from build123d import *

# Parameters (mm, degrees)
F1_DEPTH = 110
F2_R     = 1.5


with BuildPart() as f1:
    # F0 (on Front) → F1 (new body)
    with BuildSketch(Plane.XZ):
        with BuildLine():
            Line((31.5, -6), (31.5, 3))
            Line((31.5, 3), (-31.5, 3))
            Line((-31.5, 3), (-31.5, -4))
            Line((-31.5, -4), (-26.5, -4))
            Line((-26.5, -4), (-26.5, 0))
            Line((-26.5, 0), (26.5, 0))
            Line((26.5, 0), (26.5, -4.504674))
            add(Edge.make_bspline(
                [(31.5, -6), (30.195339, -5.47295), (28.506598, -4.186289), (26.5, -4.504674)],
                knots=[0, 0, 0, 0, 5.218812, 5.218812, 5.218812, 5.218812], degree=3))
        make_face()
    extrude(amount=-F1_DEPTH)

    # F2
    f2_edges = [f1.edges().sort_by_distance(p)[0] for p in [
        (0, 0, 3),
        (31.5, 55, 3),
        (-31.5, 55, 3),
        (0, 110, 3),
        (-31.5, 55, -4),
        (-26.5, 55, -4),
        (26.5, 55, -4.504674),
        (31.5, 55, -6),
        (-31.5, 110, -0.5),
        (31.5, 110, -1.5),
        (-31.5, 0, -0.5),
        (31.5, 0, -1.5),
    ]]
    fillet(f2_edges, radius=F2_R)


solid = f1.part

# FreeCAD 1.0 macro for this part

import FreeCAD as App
import Part
import Sketcher
from FreeCAD import Vector


def edges_at(feature, points):
    """Names of the edges that pass closest to the given points."""
    edges = feature.Shape.Edges
    near = lambda p: min(range(len(edges)), key=lambda i: edges[i].distToShape(Part.Vertex(*p))[0])
    return sorted({f"Edge{near(p) + 1}" for p in points})

doc = App.newDocument("Part")
params = doc.addObject("Spreadsheet::Sheet", "Params")
for row, (alias, value) in enumerate([
    ("sketch1_width", "63 mm"),
    ("sketch1_height", "9 mm"),
    ("sketch1_height2", "7 mm"),
    ("pad1_length", "110 mm"),
    ("fillet_radius", "1.5 mm"),
], start=1):
    params.set(f"A{row}", alias)
    params.set(f"B{row}", "=" + value)
    params.setAlias(f"B{row}", alias)

body = doc.addObject("PartDesign::Body", "Body")

sketch1 = doc.addObject("Sketcher::SketchObject", "Sketch")
body.addObject(sketch1)
sketch1.AttachmentSupport = (doc.XZ_Plane, [""])
sketch1.MapMode = "FlatFace"
sketch1.addGeometry(Part.LineSegment(Vector(31.5, -6, 0), Vector(31.5, 3, 0)), False)
sketch1.addGeometry(Part.LineSegment(Vector(31.5, 3, 0), Vector(-31.5, 3, 0)), False)
sketch1.addGeometry(Part.LineSegment(Vector(-31.5, 3, 0), Vector(-31.5, -4, 0)), False)
sketch1.addGeometry(Part.LineSegment(Vector(-31.5, -4, 0), Vector(-26.5, -4, 0)), False)
sketch1.addGeometry(Part.LineSegment(Vector(-26.5, -4, 0), Vector(-26.5, 0, 0)), False)
sketch1.addGeometry(Part.LineSegment(Vector(-26.5, 0, 0), Vector(26.5, 0, 0)), False)
sketch1.addGeometry(Part.LineSegment(Vector(26.5, 0, 0), Vector(26.5, -4.504674, 0)), False)
sketch1.addGeometry(Part.BSplineCurve([Vector(31.5, -6, 0), Vector(30.195339, -5.47295, 0), Vector(28.506598, -4.186289, 0), Vector(26.5, -4.504674, 0)], [4, 4], [0, 5.218812], False, 3, [1, 1, 1, 1], False), False)
sketch1.addConstraint(Sketcher.Constraint("Block", 7))
sketch1.addConstraint(Sketcher.Constraint("Coincident", 0, 2, 1, 1))
sketch1.addConstraint(Sketcher.Constraint("Coincident", 1, 2, 2, 1))
sketch1.addConstraint(Sketcher.Constraint("Coincident", 2, 2, 3, 1))
sketch1.addConstraint(Sketcher.Constraint("Coincident", 3, 2, 4, 1))
sketch1.addConstraint(Sketcher.Constraint("Coincident", 4, 2, 5, 1))
sketch1.addConstraint(Sketcher.Constraint("Coincident", 5, 2, 6, 1))
sketch1.addConstraint(Sketcher.Constraint("Coincident", 6, 2, 7, 2))
sketch1.addConstraint(Sketcher.Constraint("Coincident", 7, 1, 0, 1))
sketch1.addConstraint(Sketcher.Constraint("Vertical", 0))
sketch1.addConstraint(Sketcher.Constraint("Horizontal", 1))
sketch1.addConstraint(Sketcher.Constraint("Vertical", 2))
sketch1.addConstraint(Sketcher.Constraint("Horizontal", 3))
sketch1.addConstraint(Sketcher.Constraint("Vertical", 4))
sketch1.addConstraint(Sketcher.Constraint("Horizontal", 5))
sketch1.addConstraint(Sketcher.Constraint("Vertical", 6))
sketch1.addConstraint(Sketcher.Constraint("Symmetric", 4, 2, 5, 2, -1, 1))
sketch1.addConstraint(Sketcher.Constraint("DistanceX", 1, 2, 1, 1, 63.0))
sketch1.addConstraint(Sketcher.Constraint("DistanceY", 0, 1, 0, 2, 9.0))
sketch1.addConstraint(Sketcher.Constraint("DistanceY", 2, 2, 2, 1, 7.0))
sketch1.setExpression("Constraints[17]", "Params.sketch1_width")
sketch1.setExpression("Constraints[18]", "Params.sketch1_height")
sketch1.setExpression("Constraints[19]", "Params.sketch1_height2")
pad1 = doc.addObject("PartDesign::Pad", "Pad")
body.addObject(pad1)
pad1.Profile = sketch1
pad1.setExpression("Length", "Params.pad1_length")
pad1.Reversed = True
doc.recompute()

fillet = doc.addObject("PartDesign::Fillet", "Fillet")
body.addObject(fillet)
fillet.Base = (pad1, edges_at(pad1, [
    (0, 0, 3),
    (31.5, 55, 3),
    (-31.5, 55, 3),
    (0, 110, 3),
    (-31.5, 55, -4),
    (-26.5, 55, -4),
    (26.5, 55, -4.505),
    (31.5, 55, -6),
    (-31.5, 110, -0.5),
    (31.5, 110, -1.5),
    (-31.5, 0, -0.5),
    (31.5, 0, -1.5),
]))
fillet.setExpression("Radius", "Params.fillet_radius")

doc.recompute()
